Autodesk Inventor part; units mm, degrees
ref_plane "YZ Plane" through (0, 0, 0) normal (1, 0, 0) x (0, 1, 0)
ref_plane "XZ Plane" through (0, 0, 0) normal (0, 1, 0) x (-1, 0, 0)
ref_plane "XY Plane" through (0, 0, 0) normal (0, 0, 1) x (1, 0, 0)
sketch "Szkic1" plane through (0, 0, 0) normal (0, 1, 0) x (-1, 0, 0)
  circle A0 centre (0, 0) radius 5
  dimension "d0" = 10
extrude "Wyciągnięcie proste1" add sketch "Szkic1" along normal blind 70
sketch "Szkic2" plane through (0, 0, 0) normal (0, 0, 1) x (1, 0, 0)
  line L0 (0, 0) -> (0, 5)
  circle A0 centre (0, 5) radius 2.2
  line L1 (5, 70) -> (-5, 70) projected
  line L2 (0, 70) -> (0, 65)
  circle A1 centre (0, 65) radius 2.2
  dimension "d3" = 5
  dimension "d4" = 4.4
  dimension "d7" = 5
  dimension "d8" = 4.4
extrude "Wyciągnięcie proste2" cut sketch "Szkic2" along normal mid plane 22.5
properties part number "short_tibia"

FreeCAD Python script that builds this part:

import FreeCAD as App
import Part
import Sketcher
Q = App.Units.Quantity

doc = App.newDocument("Part")
body = doc.addObject("PartDesign::Body", "Body")

sketch1 = body.newObject("Sketcher::SketchObject", "Sketch")
sketch1.AttachmentSupport = (doc.getObject("XZ_Plane"), [""])
sketch1.MapMode = "FlatFace"
sketch1.addGeometry(Part.Circle(App.Vector(0, 0, 0), App.Vector(0, 0, 1), 5), False)
sketch1.addConstraint(Sketcher.Constraint("Coincident", 0, 3, -1, 1))
sketch1.addConstraint(Sketcher.Constraint("Diameter", 0, Q("10 mm")))
pad1 = body.newObject("PartDesign::Pad", "Pad")
pad1.Profile = sketch1
pad1.Length = 70
pad1.Reversed = True

sketch2 = body.newObject("Sketcher::SketchObject", "Sketch001")
sketch2.AttachmentSupport = (doc.getObject("XY_Plane"), [""])
sketch2.MapMode = "FlatFace"
sketch2.addGeometry(Part.Circle(App.Vector(0, 5, 0), App.Vector(0, 0, 1), 2.2), False)
sketch2.addGeometry(Part.Circle(App.Vector(0, 65, 0), App.Vector(0, 0, 1), 2.2), False)
sketch2.addConstraint(Sketcher.Constraint("Equal", 0, 1))
sketch2.addConstraint(Sketcher.Constraint("PointOnObject", 0, 3, -2))
sketch2.addConstraint(Sketcher.Constraint("PointOnObject", 1, 3, -2))
sketch2.addConstraint(Sketcher.Constraint("Diameter", 0, Q("4.4 mm")))
sketch2.addConstraint(Sketcher.Constraint("DistanceY", -1, 1, 0, 3, Q("5 mm")))
sketch2.addConstraint(Sketcher.Constraint("DistanceY", -1, 1, 1, 3, Q("65 mm")))
pocket1 = body.newObject("PartDesign::Pocket", "Pocket")
pocket1.Profile = sketch2
pocket1.Length = 22.5
pocket1.Midplane = True

doc.recompute()
